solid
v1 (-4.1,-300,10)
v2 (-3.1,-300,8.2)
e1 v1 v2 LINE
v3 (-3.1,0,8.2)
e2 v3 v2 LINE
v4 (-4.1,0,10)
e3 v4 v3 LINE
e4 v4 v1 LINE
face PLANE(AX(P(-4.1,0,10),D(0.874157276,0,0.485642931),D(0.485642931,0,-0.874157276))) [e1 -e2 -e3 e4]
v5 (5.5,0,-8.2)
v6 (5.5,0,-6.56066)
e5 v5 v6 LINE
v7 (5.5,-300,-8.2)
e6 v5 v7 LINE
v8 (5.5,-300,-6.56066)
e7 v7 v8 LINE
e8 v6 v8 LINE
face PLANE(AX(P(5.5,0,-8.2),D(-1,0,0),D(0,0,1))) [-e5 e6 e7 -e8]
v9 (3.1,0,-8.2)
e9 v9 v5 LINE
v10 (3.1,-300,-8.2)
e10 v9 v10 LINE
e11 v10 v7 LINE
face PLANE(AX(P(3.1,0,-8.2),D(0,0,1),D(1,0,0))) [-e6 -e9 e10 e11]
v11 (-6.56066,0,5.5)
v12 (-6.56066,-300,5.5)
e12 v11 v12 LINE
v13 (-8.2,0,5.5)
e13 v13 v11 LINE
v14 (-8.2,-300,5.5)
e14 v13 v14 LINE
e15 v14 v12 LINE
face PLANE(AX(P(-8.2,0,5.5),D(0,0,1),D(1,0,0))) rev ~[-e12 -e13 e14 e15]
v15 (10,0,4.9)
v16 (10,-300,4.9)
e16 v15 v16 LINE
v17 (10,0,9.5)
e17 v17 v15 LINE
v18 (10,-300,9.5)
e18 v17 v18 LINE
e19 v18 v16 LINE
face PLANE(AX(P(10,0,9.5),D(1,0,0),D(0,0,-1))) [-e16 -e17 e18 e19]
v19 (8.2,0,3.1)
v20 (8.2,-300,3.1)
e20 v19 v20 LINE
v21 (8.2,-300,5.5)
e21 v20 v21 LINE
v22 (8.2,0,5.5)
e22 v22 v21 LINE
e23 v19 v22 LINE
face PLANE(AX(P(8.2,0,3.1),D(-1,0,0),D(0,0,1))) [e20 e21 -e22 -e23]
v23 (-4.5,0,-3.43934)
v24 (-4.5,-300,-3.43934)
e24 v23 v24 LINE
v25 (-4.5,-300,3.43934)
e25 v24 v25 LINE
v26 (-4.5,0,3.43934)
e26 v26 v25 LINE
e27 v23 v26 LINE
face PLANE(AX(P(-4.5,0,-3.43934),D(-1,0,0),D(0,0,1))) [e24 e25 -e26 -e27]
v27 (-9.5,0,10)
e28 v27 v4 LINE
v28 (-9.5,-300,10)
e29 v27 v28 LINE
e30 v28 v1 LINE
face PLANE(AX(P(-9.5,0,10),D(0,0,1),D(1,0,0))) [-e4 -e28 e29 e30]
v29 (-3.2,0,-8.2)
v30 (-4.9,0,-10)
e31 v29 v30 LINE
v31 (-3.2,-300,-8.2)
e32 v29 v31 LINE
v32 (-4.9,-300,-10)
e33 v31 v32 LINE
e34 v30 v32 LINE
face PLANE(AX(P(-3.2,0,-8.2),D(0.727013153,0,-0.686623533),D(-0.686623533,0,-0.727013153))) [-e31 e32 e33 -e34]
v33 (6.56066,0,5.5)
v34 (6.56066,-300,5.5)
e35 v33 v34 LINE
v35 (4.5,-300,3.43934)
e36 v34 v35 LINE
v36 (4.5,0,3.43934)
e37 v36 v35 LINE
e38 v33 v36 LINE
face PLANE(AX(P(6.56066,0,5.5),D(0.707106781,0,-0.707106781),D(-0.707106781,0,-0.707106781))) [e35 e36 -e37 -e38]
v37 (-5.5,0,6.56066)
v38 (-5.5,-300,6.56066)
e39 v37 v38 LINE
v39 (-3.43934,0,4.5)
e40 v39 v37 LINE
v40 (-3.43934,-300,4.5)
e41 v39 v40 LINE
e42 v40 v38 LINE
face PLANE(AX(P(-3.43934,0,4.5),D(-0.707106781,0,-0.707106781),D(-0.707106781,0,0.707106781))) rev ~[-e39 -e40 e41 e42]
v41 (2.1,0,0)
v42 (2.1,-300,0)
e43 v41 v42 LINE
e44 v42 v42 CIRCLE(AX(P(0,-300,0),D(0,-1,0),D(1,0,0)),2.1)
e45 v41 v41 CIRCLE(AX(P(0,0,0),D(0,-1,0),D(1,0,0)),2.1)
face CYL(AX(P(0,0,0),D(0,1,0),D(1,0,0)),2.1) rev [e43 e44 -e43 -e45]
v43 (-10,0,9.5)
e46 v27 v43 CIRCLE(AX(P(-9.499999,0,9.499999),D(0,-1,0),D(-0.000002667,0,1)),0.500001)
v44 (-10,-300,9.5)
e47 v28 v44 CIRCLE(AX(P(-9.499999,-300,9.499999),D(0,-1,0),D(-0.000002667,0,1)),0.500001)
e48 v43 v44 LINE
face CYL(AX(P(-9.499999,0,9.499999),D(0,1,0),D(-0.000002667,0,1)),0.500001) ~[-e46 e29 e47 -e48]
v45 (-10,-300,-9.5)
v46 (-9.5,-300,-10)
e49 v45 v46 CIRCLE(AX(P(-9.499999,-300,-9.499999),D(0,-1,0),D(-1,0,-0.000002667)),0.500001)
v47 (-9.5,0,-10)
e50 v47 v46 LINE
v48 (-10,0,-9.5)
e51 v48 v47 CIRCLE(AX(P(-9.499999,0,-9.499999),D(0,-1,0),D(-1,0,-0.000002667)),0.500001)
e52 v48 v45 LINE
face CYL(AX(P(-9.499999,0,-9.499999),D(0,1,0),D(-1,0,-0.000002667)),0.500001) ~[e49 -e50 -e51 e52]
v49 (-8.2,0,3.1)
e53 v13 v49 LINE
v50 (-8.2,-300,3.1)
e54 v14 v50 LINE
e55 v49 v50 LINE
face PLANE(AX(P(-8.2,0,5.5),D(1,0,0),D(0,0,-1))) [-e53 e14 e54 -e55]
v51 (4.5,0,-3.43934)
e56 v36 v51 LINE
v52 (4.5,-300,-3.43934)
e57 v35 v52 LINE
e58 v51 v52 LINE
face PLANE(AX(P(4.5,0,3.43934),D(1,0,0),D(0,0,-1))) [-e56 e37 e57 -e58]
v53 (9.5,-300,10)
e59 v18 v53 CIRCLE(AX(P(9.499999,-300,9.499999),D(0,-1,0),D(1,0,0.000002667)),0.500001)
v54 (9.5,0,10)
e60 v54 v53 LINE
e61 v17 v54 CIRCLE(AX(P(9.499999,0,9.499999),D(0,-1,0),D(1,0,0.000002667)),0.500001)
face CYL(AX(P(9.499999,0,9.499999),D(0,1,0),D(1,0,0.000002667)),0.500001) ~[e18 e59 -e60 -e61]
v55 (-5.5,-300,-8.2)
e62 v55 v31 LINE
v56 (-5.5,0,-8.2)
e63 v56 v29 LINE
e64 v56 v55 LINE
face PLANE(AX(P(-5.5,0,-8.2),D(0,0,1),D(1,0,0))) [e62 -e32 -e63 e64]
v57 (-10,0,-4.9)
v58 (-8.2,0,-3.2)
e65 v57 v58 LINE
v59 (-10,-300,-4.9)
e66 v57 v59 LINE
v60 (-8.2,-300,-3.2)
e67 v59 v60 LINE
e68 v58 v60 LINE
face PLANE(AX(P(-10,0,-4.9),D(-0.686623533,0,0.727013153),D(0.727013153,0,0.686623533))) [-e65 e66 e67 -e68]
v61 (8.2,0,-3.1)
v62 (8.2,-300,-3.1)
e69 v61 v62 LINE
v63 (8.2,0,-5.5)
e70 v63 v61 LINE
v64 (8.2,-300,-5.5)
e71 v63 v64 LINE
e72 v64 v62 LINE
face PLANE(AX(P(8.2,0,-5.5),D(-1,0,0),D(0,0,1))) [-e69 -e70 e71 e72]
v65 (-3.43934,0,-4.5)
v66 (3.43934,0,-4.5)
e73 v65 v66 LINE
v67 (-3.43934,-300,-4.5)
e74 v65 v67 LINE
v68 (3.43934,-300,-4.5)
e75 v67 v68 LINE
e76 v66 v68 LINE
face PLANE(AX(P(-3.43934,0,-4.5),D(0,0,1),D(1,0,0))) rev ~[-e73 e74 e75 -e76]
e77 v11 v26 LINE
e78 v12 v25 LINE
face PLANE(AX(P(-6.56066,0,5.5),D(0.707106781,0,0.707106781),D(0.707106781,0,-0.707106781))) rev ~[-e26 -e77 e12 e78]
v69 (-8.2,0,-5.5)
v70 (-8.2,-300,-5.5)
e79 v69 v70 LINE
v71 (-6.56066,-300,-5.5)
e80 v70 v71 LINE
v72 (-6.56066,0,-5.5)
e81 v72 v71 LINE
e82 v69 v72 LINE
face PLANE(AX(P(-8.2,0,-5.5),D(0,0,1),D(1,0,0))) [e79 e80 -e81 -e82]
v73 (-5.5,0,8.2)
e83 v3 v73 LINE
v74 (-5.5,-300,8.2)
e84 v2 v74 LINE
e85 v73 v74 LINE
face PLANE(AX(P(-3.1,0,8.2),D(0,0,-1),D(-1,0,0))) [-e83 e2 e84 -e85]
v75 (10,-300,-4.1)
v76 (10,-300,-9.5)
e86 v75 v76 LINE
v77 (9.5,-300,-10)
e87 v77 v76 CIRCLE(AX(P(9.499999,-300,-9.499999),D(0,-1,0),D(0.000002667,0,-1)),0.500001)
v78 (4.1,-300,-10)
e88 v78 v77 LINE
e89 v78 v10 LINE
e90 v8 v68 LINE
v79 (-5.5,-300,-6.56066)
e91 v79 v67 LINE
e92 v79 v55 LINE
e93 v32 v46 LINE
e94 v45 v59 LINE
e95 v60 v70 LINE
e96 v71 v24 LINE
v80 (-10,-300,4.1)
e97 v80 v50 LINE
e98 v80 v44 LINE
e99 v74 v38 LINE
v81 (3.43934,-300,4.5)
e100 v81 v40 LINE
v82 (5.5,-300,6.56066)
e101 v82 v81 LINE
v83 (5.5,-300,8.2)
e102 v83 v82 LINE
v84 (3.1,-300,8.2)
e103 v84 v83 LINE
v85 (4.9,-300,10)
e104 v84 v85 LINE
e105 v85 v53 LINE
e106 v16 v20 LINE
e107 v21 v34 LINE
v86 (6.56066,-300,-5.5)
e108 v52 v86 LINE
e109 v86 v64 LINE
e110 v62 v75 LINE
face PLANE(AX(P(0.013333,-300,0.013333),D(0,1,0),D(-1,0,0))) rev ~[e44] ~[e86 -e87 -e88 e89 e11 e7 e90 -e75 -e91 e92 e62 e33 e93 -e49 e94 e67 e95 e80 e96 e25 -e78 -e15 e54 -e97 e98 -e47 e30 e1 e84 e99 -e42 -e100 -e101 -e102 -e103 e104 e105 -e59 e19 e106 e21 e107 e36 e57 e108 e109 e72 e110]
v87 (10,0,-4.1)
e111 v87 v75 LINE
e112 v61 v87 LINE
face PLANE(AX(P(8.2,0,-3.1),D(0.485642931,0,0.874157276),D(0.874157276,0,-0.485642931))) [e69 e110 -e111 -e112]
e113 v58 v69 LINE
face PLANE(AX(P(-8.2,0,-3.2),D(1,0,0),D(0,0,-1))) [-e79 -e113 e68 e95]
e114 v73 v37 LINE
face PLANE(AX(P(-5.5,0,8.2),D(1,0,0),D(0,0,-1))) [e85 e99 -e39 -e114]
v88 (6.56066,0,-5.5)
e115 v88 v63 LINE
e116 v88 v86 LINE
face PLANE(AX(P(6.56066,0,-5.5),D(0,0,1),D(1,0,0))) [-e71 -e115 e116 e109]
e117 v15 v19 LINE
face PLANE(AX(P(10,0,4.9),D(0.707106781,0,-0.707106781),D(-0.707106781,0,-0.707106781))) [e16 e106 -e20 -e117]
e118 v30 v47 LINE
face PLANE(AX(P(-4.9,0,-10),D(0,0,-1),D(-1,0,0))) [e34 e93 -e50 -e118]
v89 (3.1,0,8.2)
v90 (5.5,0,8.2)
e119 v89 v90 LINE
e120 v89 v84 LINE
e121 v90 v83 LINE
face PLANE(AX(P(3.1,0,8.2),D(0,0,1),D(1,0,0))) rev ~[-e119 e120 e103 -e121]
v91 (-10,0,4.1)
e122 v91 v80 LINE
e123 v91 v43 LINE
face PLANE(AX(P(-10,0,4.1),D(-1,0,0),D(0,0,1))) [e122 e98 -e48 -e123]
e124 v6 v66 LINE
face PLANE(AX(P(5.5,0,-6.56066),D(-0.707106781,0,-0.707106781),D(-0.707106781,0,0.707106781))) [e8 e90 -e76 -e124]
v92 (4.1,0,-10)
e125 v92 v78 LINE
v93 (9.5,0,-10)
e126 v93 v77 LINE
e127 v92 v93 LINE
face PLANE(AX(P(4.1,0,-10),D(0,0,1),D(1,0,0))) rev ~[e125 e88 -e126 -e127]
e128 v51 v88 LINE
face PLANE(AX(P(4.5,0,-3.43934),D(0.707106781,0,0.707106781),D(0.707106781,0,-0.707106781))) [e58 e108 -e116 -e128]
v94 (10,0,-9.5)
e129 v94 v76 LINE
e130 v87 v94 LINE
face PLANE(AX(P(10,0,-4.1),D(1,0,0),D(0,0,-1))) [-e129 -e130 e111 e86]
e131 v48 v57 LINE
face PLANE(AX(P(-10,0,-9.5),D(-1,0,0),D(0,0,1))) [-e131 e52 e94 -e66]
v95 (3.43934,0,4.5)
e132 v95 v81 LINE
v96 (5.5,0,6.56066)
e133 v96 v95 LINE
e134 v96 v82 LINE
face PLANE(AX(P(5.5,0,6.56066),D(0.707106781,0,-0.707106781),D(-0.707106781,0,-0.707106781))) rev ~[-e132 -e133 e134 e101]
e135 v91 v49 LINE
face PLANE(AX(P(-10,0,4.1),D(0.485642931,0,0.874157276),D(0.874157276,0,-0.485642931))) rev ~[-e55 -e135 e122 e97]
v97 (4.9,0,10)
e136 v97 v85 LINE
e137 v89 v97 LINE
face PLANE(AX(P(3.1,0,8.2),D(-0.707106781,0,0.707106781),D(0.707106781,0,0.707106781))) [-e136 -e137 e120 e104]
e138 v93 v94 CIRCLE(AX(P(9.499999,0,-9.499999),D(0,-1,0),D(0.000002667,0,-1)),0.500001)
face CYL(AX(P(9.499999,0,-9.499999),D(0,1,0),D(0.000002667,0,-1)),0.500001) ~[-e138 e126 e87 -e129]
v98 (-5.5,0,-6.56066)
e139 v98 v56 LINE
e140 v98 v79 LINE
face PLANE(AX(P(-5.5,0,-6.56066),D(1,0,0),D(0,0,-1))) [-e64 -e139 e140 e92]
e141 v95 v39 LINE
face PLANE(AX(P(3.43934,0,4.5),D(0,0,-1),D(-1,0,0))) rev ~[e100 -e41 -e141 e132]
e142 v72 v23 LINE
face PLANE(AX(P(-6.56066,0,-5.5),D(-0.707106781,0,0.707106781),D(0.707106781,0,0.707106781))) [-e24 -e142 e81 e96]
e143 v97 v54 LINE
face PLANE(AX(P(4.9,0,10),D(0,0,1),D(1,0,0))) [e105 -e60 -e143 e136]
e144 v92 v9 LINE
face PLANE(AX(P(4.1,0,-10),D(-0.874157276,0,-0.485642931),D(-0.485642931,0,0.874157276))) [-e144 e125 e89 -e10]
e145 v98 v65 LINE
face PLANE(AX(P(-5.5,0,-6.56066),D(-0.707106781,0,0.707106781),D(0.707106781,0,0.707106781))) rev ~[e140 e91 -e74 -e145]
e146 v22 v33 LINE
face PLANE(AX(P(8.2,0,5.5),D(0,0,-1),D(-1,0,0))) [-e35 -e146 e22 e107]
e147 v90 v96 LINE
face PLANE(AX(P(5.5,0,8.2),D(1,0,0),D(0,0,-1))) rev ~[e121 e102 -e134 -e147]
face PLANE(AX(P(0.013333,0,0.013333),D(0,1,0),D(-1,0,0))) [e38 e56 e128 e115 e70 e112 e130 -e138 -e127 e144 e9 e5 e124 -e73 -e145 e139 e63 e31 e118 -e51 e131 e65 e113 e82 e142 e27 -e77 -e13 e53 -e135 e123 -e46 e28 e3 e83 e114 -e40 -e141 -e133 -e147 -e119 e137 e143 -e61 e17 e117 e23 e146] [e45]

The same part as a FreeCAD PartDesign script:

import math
import FreeCAD as App
import Part
import Sketcher

V = App.Vector

doc = App.newDocument("Part")
body = doc.addObject("PartDesign::Body", "Body")

sketch1 = body.newObject("Sketcher::SketchObject", "Sketch")
sketch1.AttachmentSupport = (doc.getObject("XZ_Plane"), [""])
sketch1.MapMode = "FlatFace"
sketch1.addGeometry([
    Part.LineSegment(V(-8.2, 3.1, 0), V(-8.2, 5.5, 0)),
    Part.LineSegment(V(-8.2, 5.5, 0), V(-6.6, 5.5, 0)),
    Part.LineSegment(V(-6.6, 5.5, 0), V(-4.5, 3.4, 0)),
    Part.LineSegment(V(-4.5, 3.4, 0), V(-4.5, -3.4, 0)),
    Part.LineSegment(V(-4.5, -3.4, 0), V(-6.6, -5.5, 0)),
    Part.LineSegment(V(-6.6, -5.5, 0), V(-8.2, -5.5, 0)),
    Part.LineSegment(V(-8.2, -5.5, 0), V(-8.2, -3.2, 0)),
    Part.LineSegment(V(-8.2, -3.2, 0), V(-10, -4.9, 0)),
    Part.LineSegment(V(-10, -4.9, 0), V(-10, -9.5, 0)),
    Part.ArcOfCircle(Part.Circle(V(-9.5, -9.5, 0), V(0, 0, 1), 0.5), math.radians(-180), math.radians(-90)),
    Part.LineSegment(V(-9.5, -10, 0), V(-4.9, -10, 0)),
    Part.LineSegment(V(-4.9, -10, 0), V(-3.2, -8.2, 0)),
    Part.LineSegment(V(-3.2, -8.2, 0), V(-5.5, -8.2, 0)),
    Part.LineSegment(V(-5.5, -8.2, 0), V(-5.5, -6.6, 0)),
    Part.LineSegment(V(-5.5, -6.6, 0), V(-3.4, -4.5, 0)),
    Part.LineSegment(V(-3.4, -4.5, 0), V(3.4, -4.5, 0)),
    Part.LineSegment(V(3.4, -4.5, 0), V(5.5, -6.6, 0)),
    Part.LineSegment(V(5.5, -6.6, 0), V(5.5, -8.2, 0)),
    Part.LineSegment(V(5.5, -8.2, 0), V(3.1, -8.2, 0)),
    Part.LineSegment(V(3.1, -8.2, 0), V(4.1, -10, 0)),
    Part.LineSegment(V(4.1, -10, 0), V(9.5, -10, 0)),
    Part.ArcOfCircle(Part.Circle(V(9.5, -9.5, 0), V(0, 0, 1), 0.5), math.radians(-90), math.radians(0)),
    Part.LineSegment(V(10, -9.5, 0), V(10, -4.1, 0)),
    Part.LineSegment(V(10, -4.1, 0), V(8.2, -3.1, 0)),
    Part.LineSegment(V(8.2, -3.1, 0), V(8.2, -5.5, 0)),
    Part.LineSegment(V(8.2, -5.5, 0), V(6.6, -5.5, 0)),
    Part.LineSegment(V(6.6, -5.5, 0), V(4.5, -3.4, 0)),
    Part.LineSegment(V(4.5, -3.4, 0), V(4.5, 3.4, 0)),
    Part.LineSegment(V(4.5, 3.4, 0), V(6.6, 5.5, 0)),
    Part.LineSegment(V(6.6, 5.5, 0), V(8.2, 5.5, 0)),
    Part.LineSegment(V(8.2, 5.5, 0), V(8.2, 3.1, 0)),
    Part.LineSegment(V(8.2, 3.1, 0), V(10, 4.9, 0)),
    Part.LineSegment(V(10, 4.9, 0), V(10, 9.5, 0)),
    Part.ArcOfCircle(Part.Circle(V(9.5, 9.5, 0), V(0, 0, 1), 0.5), math.radians(0), math.radians(90)),
    Part.LineSegment(V(9.5, 10, 0), V(4.9, 10, 0)),
    Part.LineSegment(V(4.9, 10, 0), V(3.1, 8.2, 0)),
    Part.LineSegment(V(3.1, 8.2, 0), V(5.5, 8.2, 0)),
    Part.LineSegment(V(5.5, 8.2, 0), V(5.5, 6.6, 0)),
    Part.LineSegment(V(5.5, 6.6, 0), V(3.4, 4.5, 0)),
    Part.LineSegment(V(3.4, 4.5, 0), V(-3.4, 4.5, 0)),
    Part.LineSegment(V(-3.4, 4.5, 0), V(-5.5, 6.6, 0)),
    Part.LineSegment(V(-5.5, 6.6, 0), V(-5.5, 8.2, 0)),
    Part.LineSegment(V(-5.5, 8.2, 0), V(-3.1, 8.2, 0)),
    Part.LineSegment(V(-3.1, 8.2, 0), V(-4.1, 10, 0)),
    Part.LineSegment(V(-4.1, 10, 0), V(-9.5, 10, 0)),
    Part.ArcOfCircle(Part.Circle(V(-9.5, 9.5, 0), V(0, 0, 1), 0.5), math.radians(90), math.radians(180)),
    Part.LineSegment(V(-10, 9.5, 0), V(-10, 4.1, 0)),
    Part.LineSegment(V(-10, 4.1, 0), V(-8.2, 3.1, 0)),
    Part.Circle(V(0, 0, 0), V(0, 0, 1), 2.1),
], False)
sketch1.addConstraint([
    Sketcher.Constraint("Coincident", 0, 2, 1, 1),
    Sketcher.Constraint("Coincident", 1, 2, 2, 1),
    Sketcher.Constraint("Coincident", 2, 2, 3, 1),
    Sketcher.Constraint("Coincident", 3, 2, 4, 1),
    Sketcher.Constraint("Coincident", 4, 2, 5, 1),
    Sketcher.Constraint("Coincident", 5, 2, 6, 1),
    Sketcher.Constraint("Coincident", 6, 2, 7, 1),
    Sketcher.Constraint("Coincident", 7, 2, 8, 1),
    Sketcher.Constraint("Coincident", 8, 2, 9, 1),
    Sketcher.Constraint("Coincident", 9, 2, 10, 1),
    Sketcher.Constraint("Coincident", 10, 2, 11, 1),
    Sketcher.Constraint("Coincident", 11, 2, 12, 1),
    Sketcher.Constraint("Coincident", 12, 2, 13, 1),
    Sketcher.Constraint("Coincident", 13, 2, 14, 1),
    Sketcher.Constraint("Coincident", 14, 2, 15, 1),
    Sketcher.Constraint("Coincident", 15, 2, 16, 1),
    Sketcher.Constraint("Coincident", 16, 2, 17, 1),
    Sketcher.Constraint("Coincident", 17, 2, 18, 1),
    Sketcher.Constraint("Coincident", 18, 2, 19, 1),
    Sketcher.Constraint("Coincident", 19, 2, 20, 1),
    Sketcher.Constraint("Coincident", 20, 2, 21, 1),
    Sketcher.Constraint("Coincident", 21, 2, 22, 1),
    Sketcher.Constraint("Coincident", 22, 2, 23, 1),
    Sketcher.Constraint("Coincident", 23, 2, 24, 1),
    Sketcher.Constraint("Coincident", 24, 2, 25, 1),
    Sketcher.Constraint("Coincident", 25, 2, 26, 1),
    Sketcher.Constraint("Coincident", 26, 2, 27, 1),
    Sketcher.Constraint("Coincident", 27, 2, 28, 1),
    Sketcher.Constraint("Coincident", 28, 2, 29, 1),
    Sketcher.Constraint("Coincident", 29, 2, 30, 1),
    Sketcher.Constraint("Coincident", 30, 2, 31, 1),
    Sketcher.Constraint("Coincident", 31, 2, 32, 1),
    Sketcher.Constraint("Coincident", 32, 2, 33, 1),
    Sketcher.Constraint("Coincident", 33, 2, 34, 1),
    Sketcher.Constraint("Coincident", 34, 2, 35, 1),
    Sketcher.Constraint("Coincident", 35, 2, 36, 1),
    Sketcher.Constraint("Coincident", 36, 2, 37, 1),
    Sketcher.Constraint("Coincident", 37, 2, 38, 1),
    Sketcher.Constraint("Coincident", 38, 2, 39, 1),
    Sketcher.Constraint("Coincident", 39, 2, 40, 1),
    Sketcher.Constraint("Coincident", 40, 2, 41, 1),
    Sketcher.Constraint("Coincident", 41, 2, 42, 1),
    Sketcher.Constraint("Coincident", 42, 2, 43, 1),
    Sketcher.Constraint("Coincident", 43, 2, 44, 1),
    Sketcher.Constraint("Coincident", 44, 2, 45, 1),
    Sketcher.Constraint("Coincident", 45, 2, 46, 1),
    Sketcher.Constraint("Coincident", 46, 2, 47, 1),
    Sketcher.Constraint("Coincident", 47, 2, 0, 1),
    Sketcher.Constraint("Vertical", 0),
    Sketcher.Constraint("Horizontal", 1),
    Sketcher.Constraint("Vertical", 3),
    Sketcher.Constraint("Horizontal", 5),
    Sketcher.Constraint("Vertical", 6),
    Sketcher.Constraint("Vertical", 8),
    Sketcher.Constraint("Horizontal", 10),
    Sketcher.Constraint("Horizontal", 12),
    Sketcher.Constraint("Vertical", 13),
    Sketcher.Constraint("Horizontal", 15),
    Sketcher.Constraint("Vertical", 17),
    Sketcher.Constraint("Horizontal", 18),
    Sketcher.Constraint("Horizontal", 20),
    Sketcher.Constraint("Vertical", 22),
    Sketcher.Constraint("Vertical", 24),
    Sketcher.Constraint("Horizontal", 25),
    Sketcher.Constraint("Vertical", 27),
    Sketcher.Constraint("Horizontal", 29),
    Sketcher.Constraint("Vertical", 30),
    Sketcher.Constraint("Vertical", 32),
    Sketcher.Constraint("Horizontal", 34),
    Sketcher.Constraint("Horizontal", 36),
    Sketcher.Constraint("Vertical", 37),
    Sketcher.Constraint("Horizontal", 39),
    Sketcher.Constraint("Vertical", 41),
    Sketcher.Constraint("Horizontal", 42),
    Sketcher.Constraint("Horizontal", 44),
    Sketcher.Constraint("Vertical", 46),
    Sketcher.Constraint("Coincident", 48, 3, -1, 1),
    Sketcher.Constraint("Equal", 9, 21),
    Sketcher.Constraint("Equal", 21, 33),
    Sketcher.Constraint("Equal", 33, 45),
    Sketcher.Constraint("Symmetric", 9, 3, 33, 3, -1, 1),
    Sketcher.Constraint("Symmetric", 21, 3, 45, 3, -1, 1),
    Sketcher.Constraint("Symmetric", 0, 2, 24, 2, -1, 1),
    Sketcher.Constraint("Symmetric", 2, 2, 26, 2, -1, 1),
    Sketcher.Constraint("Symmetric", 4, 2, 28, 2, -1, 1),
    Sketcher.Constraint("Symmetric", 12, 2, 36, 2, -1, 1),
    Sketcher.Constraint("Symmetric", 14, 2, 38, 2, -1, 1),
    Sketcher.Constraint("Symmetric", 16, 2, 40, 2, -1, 1),
    Sketcher.Constraint("Symmetric", 18, 2, 42, 2, -1, 1),
    Sketcher.Constraint("Symmetric", 9, 3, 21, 3, -2),
    Sketcher.Constraint("Symmetric", 13, 2, 16, 2, -2),
    Sketcher.Constraint("Symmetric", 5, 2, 24, 2, -2),
    Sketcher.Constraint("Symmetric", 35, 2, 42, 2, -2),
    Sketcher.Constraint("Symmetric", 30, 2, 47, 2, -2),
    Sketcher.Constraint("Perpendicular", 2, 4),
    Sketcher.Constraint("Parallel", 4, 14),
    Sketcher.Constraint("Perpendicular", 14, 16),
    Sketcher.Constraint("Parallel", 16, 26),
    Sketcher.Constraint("Perpendicular", 26, 28),
    Sketcher.Constraint("Parallel", 28, 31),
    Sketcher.Constraint("Parallel", 31, 35),
    Sketcher.Constraint("Parallel", 35, 38),
    Sketcher.Constraint("Perpendicular", 38, 40),
    Sketcher.Constraint("Parallel", 19, 43),
    Sketcher.Constraint("Parallel", 23, 47),
    Sketcher.Constraint("Horizontal", 21, 3, 8, 2),
    Sketcher.Constraint("Horizontal", 8, 2, 21, 2),
    Sketcher.Constraint("Horizontal", 3, 2, 26, 2),
    Sketcher.Constraint("Horizontal", 45, 3, 32, 2),
    Sketcher.Constraint("Horizontal", 32, 2, 45, 2),
    Sketcher.Constraint("Vertical", 1, 2, 4, 2),
    Sketcher.Constraint("Vertical", 45, 3, 9, 2),
    Sketcher.Constraint("Vertical", 33, 3, 20, 2),
    Sketcher.Constraint("Vertical", 20, 2, 33, 2),
    Sketcher.Constraint("Vertical", 9, 2, 44, 2),
    Sketcher.Constraint("Equal", 10, 34),
    Sketcher.Constraint("Equal", 42, 0),
    Sketcher.Constraint("Equal", 39, 3),
    Sketcher.Constraint("Equal", 12, 6),
    Sketcher.Constraint("Equal", 34, 8),
    Sketcher.Constraint("Equal", 29, 13),
    Sketcher.Constraint("Equal", 44, 22),
    Sketcher.Constraint("Equal", 0, 24),
    Sketcher.Constraint("Equal", 8, 32),
    Sketcher.Constraint("Equal", 7, 11),
    Sketcher.Constraint("Equal", 4, 14),
    Sketcher.Constraint("Diameter", 48, 4.2),
    Sketcher.Constraint("Radius", 9, 0.500001),
    Sketcher.Constraint("DistanceX", 10, 1, 10, 2, 4.6),
    Sketcher.Constraint("DistanceX", 12, 2, 12, 1, 2.3),
    Sketcher.Constraint("DistanceX", 18, 2, 18, 1, 2.4),
    Sketcher.Constraint("DistanceX", 20, 1, 20, 2, 5.4),
    Sketcher.Constraint("DistanceX", 7, 2, -1, 1, 10.0),
    Sketcher.Constraint("DistanceY", 0, 2, 45, 3, 3.999999),
    Sketcher.Constraint("DistanceX", 45, 3, 2, 2, 4.999999),
    Sketcher.Constraint("DistanceX", 1, 1, 1, 2, 1.63934),
])
pad1 = body.newObject("PartDesign::Pad", "Pad")
pad1.Profile = sketch1
pad1.Length = 300

doc.recompute()
